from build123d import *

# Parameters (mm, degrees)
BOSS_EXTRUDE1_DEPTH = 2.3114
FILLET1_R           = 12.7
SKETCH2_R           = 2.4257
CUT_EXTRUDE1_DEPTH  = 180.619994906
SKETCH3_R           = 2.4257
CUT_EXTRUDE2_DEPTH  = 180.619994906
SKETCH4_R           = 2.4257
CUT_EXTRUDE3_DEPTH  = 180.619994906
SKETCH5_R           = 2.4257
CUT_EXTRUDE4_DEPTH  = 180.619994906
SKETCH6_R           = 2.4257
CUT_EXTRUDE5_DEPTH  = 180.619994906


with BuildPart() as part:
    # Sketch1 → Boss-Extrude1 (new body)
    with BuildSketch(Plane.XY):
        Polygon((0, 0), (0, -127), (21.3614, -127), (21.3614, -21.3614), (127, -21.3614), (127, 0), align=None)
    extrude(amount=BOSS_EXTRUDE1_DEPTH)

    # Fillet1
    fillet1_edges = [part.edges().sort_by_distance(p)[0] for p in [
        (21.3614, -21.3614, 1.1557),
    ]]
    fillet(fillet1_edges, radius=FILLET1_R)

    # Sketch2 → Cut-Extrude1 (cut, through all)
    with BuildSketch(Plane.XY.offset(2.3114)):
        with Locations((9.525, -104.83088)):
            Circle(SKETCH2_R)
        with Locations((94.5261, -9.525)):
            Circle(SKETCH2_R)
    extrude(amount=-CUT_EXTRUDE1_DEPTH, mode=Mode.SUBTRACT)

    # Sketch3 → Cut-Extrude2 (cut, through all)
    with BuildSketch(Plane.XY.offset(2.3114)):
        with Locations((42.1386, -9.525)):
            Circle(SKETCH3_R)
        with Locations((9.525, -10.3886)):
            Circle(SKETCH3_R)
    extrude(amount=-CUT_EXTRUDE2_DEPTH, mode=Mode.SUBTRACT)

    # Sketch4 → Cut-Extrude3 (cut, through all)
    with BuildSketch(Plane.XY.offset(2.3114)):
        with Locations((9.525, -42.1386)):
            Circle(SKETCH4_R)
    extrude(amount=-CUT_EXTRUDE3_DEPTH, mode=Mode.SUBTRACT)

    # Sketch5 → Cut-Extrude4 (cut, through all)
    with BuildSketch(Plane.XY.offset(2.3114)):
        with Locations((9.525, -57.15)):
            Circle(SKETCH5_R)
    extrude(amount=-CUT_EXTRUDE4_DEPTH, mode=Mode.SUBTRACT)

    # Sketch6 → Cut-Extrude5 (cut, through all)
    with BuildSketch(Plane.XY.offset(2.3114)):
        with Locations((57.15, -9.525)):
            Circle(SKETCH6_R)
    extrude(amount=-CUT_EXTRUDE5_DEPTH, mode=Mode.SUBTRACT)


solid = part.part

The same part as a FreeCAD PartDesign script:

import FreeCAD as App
import Part
import Sketcher

V = App.Vector
Q = App.Units.Quantity


def edges_at(feature, points):
    """Names of the edges that pass closest to the given points."""
    edges = feature.Shape.Edges
    near = lambda p: min(range(len(edges)), key=lambda i: edges[i].distToShape(Part.Vertex(*p))[0])
    return sorted({f"Edge{near(p) + 1}" for p in points})


def add_polygon(sketch, points):
    """Adds a closed chain of lines whose ends are joined by coincident constraints."""
    first, n = sketch.GeometryCount, len(points)
    for a, b in zip(points, points[1:] + points[:1]):
        sketch.addGeometry(Part.LineSegment(App.Vector(*a, 0), App.Vector(*b, 0)), False)
    for i in range(n):
        sketch.addConstraint(Sketcher.Constraint("Coincident", first + i, 2, first + (i + 1) % n, 1))

doc = App.newDocument("Part")
params = doc.addObject("Spreadsheet::Sheet", "Params")
for row, (alias, value) in enumerate([
    ("sketch1_width", "5 in"),
    ("sketch1_width2", "0.841 in"),
    ("pad1_length", "0.091 in"),
    ("fillet_radius", "0.5 in"),
    ("sketch2_diameter", "0.191 in"),
    ("sketch3_diameter", "0.191 in"),
    ("sketch4_diameter", "0.191 in"),
    ("sketch5_diameter", "0.191 in"),
    ("sketch6_diameter", "0.191 in"),
], start=1):
    params.set(f"A{row}", alias)
    params.set(f"B{row}", "=" + value)
    params.setAlias(f"B{row}", alias)

body = doc.addObject("PartDesign::Body", "Body")

sketch1 = body.newObject("Sketcher::SketchObject", "Sketch")
sketch1.AttachmentSupport = (doc.getObject("XY_Plane"), [""])
sketch1.MapMode = "FlatFace"
add_polygon(sketch1, [(0, 0), (0, -127), (21.3614, -127), (21.3614, -21.3614), (127, -21.3614), (127, 0)])
sketch1.addConstraint([
    Sketcher.Constraint("Vertical", 0),
    Sketcher.Constraint("Horizontal", 1),
    Sketcher.Constraint("Vertical", 2),
    Sketcher.Constraint("Horizontal", 3),
    Sketcher.Constraint("Vertical", 4),
    Sketcher.Constraint("Horizontal", 5),
    Sketcher.Constraint("Coincident", 5, 2, -1, 1),
    Sketcher.Constraint("Equal", 5, 0),
    Sketcher.Constraint("Equal", 3, 2),
    Sketcher.Constraint("DistanceX", 5, 2, 5, 1, Q("5 in")),
    Sketcher.Constraint("DistanceX", 1, 1, 1, 2, Q("0.841 in")),
])
sketch1.setExpression("Constraints[15]", "Params.sketch1_width")
sketch1.setExpression("Constraints[16]", "Params.sketch1_width2")
pad1 = body.newObject("PartDesign::Pad", "Pad")
pad1.Profile = sketch1
pad1.setExpression("Length", "Params.pad1_length")
doc.recompute()

fillet = body.newObject("PartDesign::Fillet", "Fillet")
fillet.Base = (pad1, edges_at(pad1, [(21.361, -21.361, 1.156)]))
fillet.setExpression("Radius", "Params.fillet_radius")

sketch2 = body.newObject("Sketcher::SketchObject", "Sketch001")
sketch2.AttachmentSupport = (doc.getObject("XY_Plane"), [""])
sketch2.MapMode = "FlatFace"
sketch2.AttachmentOffset = App.Placement(V(0, 0, 0.091 * 25.4), App.Rotation())
sketch2.addGeometry([
    Part.Circle(V(9.525, -104.83088, 0), V(0, 0, 1), 2.4257),
    Part.Circle(V(94.5261, -9.525, 0), V(0, 0, 1), 2.4257),
], False)
sketch2.addConstraint([
    Sketcher.Constraint("Equal", 0, 1),
    Sketcher.Constraint("Diameter", 0, Q("0.191 in")),
    Sketcher.Constraint("DistanceX", -1, 1, 0, 3, Q("0.375 in")),
    Sketcher.Constraint("DistanceY", 1, 3, -1, 1, Q("0.375 in")),
    Sketcher.Constraint("DistanceY", 0, 3, -1, 1, Q("4.1272 in")),
    Sketcher.Constraint("DistanceX", -1, 1, 1, 3, Q("3.7215 in")),
])
sketch2.setExpression("Constraints[1]", "Params.sketch2_diameter")
pocket1 = body.newObject("PartDesign::Pocket", "Pocket")
pocket1.Profile = sketch2
pocket1.Type = "ThroughAll"

sketch3 = body.newObject("Sketcher::SketchObject", "Sketch002")
sketch3.AttachmentSupport = (doc.getObject("XY_Plane"), [""])
sketch3.MapMode = "FlatFace"
sketch3.AttachmentOffset = App.Placement(V(0, 0, 0.091 * 25.4), App.Rotation())
sketch3.addGeometry([
    Part.Circle(V(42.1386, -9.525, 0), V(0, 0, 1), 2.4257),
    Part.Circle(V(9.525, -10.3886, 0), V(0, 0, 1), 2.4257),
], False)
sketch3.addConstraint([
    Sketcher.Constraint("Equal", 0, 1),
    Sketcher.Constraint("Diameter", 0, Q("0.191 in")),
    Sketcher.Constraint("DistanceX", -1, 1, 0, 3, Q("1.659 in")),
    Sketcher.Constraint("DistanceY", 0, 3, -1, 1, Q("0.375 in")),
    Sketcher.Constraint("DistanceX", -1, 1, 1, 3, Q("0.375 in")),
    Sketcher.Constraint("DistanceY", 1, 3, -1, 1, Q("0.409 in")),
])
sketch3.setExpression("Constraints[1]", "Params.sketch3_diameter")
pocket2 = body.newObject("PartDesign::Pocket", "Pocket001")
pocket2.Profile = sketch3
pocket2.Type = "ThroughAll"

sketch4 = body.newObject("Sketcher::SketchObject", "Sketch003")
sketch4.AttachmentSupport = (doc.getObject("XY_Plane"), [""])
sketch4.MapMode = "FlatFace"
sketch4.AttachmentOffset = App.Placement(V(0, 0, 0.091 * 25.4), App.Rotation())
sketch4.addGeometry(Part.Circle(V(9.525, -42.1386, 0), V(0, 0, 1), 2.4257), False)
sketch4.addConstraint([
    Sketcher.Constraint("Diameter", 0, Q("0.191 in")),
    Sketcher.Constraint("DistanceX", -1, 1, 0, 3, Q("0.375 in")),
    Sketcher.Constraint("DistanceY", 0, 3, -1, 1, Q("1.659 in")),
])
sketch4.setExpression("Constraints[0]", "Params.sketch4_diameter")
pocket3 = body.newObject("PartDesign::Pocket", "Pocket002")
pocket3.Profile = sketch4
pocket3.Type = "ThroughAll"

sketch5 = body.newObject("Sketcher::SketchObject", "Sketch004")
sketch5.AttachmentSupport = (doc.getObject("XY_Plane"), [""])
sketch5.MapMode = "FlatFace"
sketch5.AttachmentOffset = App.Placement(V(0, 0, 0.091 * 25.4), App.Rotation())
sketch5.addGeometry(Part.Circle(V(9.525, -57.15, 0), V(0, 0, 1), 2.4257), False)
sketch5.addConstraint([
    Sketcher.Constraint("Diameter", 0, Q("0.191 in")),
    Sketcher.Constraint("DistanceY", 0, 3, -1, 1, Q("2.25 in")),
    Sketcher.Constraint("DistanceX", -1, 1, 0, 3, Q("0.375 in")),
])
sketch5.setExpression("Constraints[0]", "Params.sketch5_diameter")
pocket4 = body.newObject("PartDesign::Pocket", "Pocket003")
pocket4.Profile = sketch5
pocket4.Type = "ThroughAll"

sketch6 = body.newObject("Sketcher::SketchObject", "Sketch005")
sketch6.AttachmentSupport = (doc.getObject("XY_Plane"), [""])
sketch6.MapMode = "FlatFace"
sketch6.AttachmentOffset = App.Placement(V(0, 0, 0.091 * 25.4), App.Rotation())
sketch6.addGeometry(Part.Circle(V(57.15, -9.525, 0), V(0, 0, 1), 2.4257), False)
sketch6.addConstraint([
    Sketcher.Constraint("Diameter", 0, Q("0.191 in")),
    Sketcher.Constraint("DistanceX", -1, 1, 0, 3, Q("2.25 in")),
    Sketcher.Constraint("DistanceY", 0, 3, -1, 1, Q("0.375 in")),
])
sketch6.setExpression("Constraints[0]", "Params.sketch6_diameter")
pocket5 = body.newObject("PartDesign::Pocket", "Pocket004")
pocket5.Profile = sketch6
pocket5.Type = "ThroughAll"

doc.recompute()
